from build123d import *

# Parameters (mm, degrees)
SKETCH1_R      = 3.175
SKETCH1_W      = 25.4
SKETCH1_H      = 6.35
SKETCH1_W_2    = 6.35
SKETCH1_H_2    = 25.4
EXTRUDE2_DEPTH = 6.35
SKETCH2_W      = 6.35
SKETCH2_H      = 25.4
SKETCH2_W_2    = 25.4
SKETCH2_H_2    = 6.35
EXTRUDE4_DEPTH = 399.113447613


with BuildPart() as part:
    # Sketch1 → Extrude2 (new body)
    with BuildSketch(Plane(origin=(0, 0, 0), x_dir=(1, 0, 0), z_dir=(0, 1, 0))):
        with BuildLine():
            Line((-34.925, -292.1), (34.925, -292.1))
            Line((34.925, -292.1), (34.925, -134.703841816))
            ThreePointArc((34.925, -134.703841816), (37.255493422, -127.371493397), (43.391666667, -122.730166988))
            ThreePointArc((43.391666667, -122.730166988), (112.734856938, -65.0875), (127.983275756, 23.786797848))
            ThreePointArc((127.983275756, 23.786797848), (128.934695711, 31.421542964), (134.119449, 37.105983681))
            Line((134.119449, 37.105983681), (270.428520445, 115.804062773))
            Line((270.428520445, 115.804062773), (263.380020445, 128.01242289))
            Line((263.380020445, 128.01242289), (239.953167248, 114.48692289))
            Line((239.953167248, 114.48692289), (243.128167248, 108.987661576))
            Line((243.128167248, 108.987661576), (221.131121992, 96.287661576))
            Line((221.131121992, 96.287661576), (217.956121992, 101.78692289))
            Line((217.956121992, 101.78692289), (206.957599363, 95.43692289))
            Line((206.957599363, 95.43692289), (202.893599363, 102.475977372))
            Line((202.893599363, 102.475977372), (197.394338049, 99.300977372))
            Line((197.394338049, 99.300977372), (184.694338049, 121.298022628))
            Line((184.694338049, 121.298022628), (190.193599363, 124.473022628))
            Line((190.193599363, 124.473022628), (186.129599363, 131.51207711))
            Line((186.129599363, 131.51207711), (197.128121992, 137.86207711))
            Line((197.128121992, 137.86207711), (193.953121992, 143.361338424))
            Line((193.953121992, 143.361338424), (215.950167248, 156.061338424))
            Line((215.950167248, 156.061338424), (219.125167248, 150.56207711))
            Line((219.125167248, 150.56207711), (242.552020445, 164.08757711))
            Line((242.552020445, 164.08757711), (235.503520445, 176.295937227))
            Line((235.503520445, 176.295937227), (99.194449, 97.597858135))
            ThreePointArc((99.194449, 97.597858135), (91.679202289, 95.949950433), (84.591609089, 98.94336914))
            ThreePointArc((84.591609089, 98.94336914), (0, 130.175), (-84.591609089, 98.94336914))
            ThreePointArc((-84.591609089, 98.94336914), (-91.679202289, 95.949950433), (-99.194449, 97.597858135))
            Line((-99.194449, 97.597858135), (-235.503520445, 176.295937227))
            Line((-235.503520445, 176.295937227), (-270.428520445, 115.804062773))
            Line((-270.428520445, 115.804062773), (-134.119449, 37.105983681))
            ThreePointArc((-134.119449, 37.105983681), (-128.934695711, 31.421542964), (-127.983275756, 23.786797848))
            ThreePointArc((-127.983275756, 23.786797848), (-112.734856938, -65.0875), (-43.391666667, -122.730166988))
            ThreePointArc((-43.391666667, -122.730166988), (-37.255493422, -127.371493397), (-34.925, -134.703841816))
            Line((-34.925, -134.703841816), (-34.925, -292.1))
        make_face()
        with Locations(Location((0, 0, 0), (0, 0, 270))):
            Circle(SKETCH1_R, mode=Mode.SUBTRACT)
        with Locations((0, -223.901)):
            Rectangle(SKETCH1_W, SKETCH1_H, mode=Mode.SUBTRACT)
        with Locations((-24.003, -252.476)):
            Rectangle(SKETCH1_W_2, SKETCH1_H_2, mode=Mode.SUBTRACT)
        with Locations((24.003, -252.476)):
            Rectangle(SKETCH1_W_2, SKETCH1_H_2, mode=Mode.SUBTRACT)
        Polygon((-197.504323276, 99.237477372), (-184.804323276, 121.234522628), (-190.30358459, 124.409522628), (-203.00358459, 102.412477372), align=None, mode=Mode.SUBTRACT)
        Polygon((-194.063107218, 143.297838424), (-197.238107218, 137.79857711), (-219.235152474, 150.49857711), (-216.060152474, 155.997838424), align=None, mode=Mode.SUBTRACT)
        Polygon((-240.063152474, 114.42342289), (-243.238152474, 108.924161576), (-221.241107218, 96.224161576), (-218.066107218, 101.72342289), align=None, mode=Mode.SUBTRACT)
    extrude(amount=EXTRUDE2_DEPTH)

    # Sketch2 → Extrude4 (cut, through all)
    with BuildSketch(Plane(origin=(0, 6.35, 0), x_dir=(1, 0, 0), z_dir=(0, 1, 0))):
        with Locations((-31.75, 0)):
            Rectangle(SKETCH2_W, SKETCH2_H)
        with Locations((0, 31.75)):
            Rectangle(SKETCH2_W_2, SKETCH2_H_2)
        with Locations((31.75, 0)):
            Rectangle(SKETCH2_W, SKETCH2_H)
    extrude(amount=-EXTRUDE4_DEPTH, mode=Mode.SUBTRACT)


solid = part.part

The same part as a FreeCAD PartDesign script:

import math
import FreeCAD as App
import Part
import Sketcher
from FreeCAD import Vector
Q = App.Units.Quantity

doc = App.newDocument("Part")
body = doc.addObject("PartDesign::Body", "Body")

# Sketch on XZ plane
sketch1 = body.newObject("Sketcher::SketchObject", "Sketch")
sketch1.AttachmentSupport = (doc.getObject("XZ_Plane"), [""])
sketch1.MapMode = "FlatFace"
sketch1.addGeometry([
    Part.LineSegment(Vector(-34.9, 292.1, 0), Vector(34.9, 292.1, 0)),  # 0
    Part.LineSegment(Vector(34.9, 292.1, 0), Vector(34.9, 134.7, 0)),  # 1
    Part.ArcOfCircle(Part.Circle(Vector(47.6, 134.7, 0), Vector(0, 0, 1), 12.7), math.radians(180), math.radians(251)),  # 2
    Part.ArcOfCircle(Part.Circle(Vector(0, 0, 0), Vector(0, 0, 1), 130.2), math.radians(-11), math.radians(71)),  # 3
    Part.ArcOfCircle(Part.Circle(Vector(140.5, -26.1, 0), Vector(0, 0, 1), 12.7), math.radians(169), math.radians(240)),  # 4
    Part.LineSegment(Vector(134.1, -37.1, 0), Vector(270.4, -115.8, 0)),  # 5
    Part.LineSegment(Vector(270.4, -115.8, 0), Vector(263.4, -128, 0)),  # 6
    Part.LineSegment(Vector(263.4, -128, 0), Vector(240, -114.5, 0)),  # 7
    Part.LineSegment(Vector(240, -114.5, 0), Vector(243.1, -109, 0)),  # 8
    Part.LineSegment(Vector(243.1, -109, 0), Vector(221.1, -96.3, 0)),  # 9
    Part.LineSegment(Vector(221.1, -96.3, 0), Vector(218, -101.8, 0)),  # 10
    Part.LineSegment(Vector(218, -101.8, 0), Vector(207, -95.4, 0)),  # 11
    Part.LineSegment(Vector(207, -95.4, 0), Vector(202.9, -102.5, 0)),  # 12
    Part.LineSegment(Vector(202.9, -102.5, 0), Vector(197.4, -99.3, 0)),  # 13
    Part.LineSegment(Vector(197.4, -99.3, 0), Vector(184.7, -121.3, 0)),  # 14
    Part.LineSegment(Vector(184.7, -121.3, 0), Vector(190.2, -124.5, 0)),  # 15
    Part.LineSegment(Vector(190.2, -124.5, 0), Vector(186.1, -131.5, 0)),  # 16
    Part.LineSegment(Vector(186.1, -131.5, 0), Vector(197.1, -137.9, 0)),  # 17
    Part.LineSegment(Vector(197.1, -137.9, 0), Vector(194, -143.4, 0)),  # 18
    Part.LineSegment(Vector(194, -143.4, 0), Vector(216, -156.1, 0)),  # 19
    Part.LineSegment(Vector(216, -156.1, 0), Vector(219.1, -150.6, 0)),  # 20
    Part.LineSegment(Vector(219.1, -150.6, 0), Vector(242.6, -164.1, 0)),  # 21
    Part.LineSegment(Vector(242.6, -164.1, 0), Vector(235.5, -176.3, 0)),  # 22
    Part.LineSegment(Vector(235.5, -176.3, 0), Vector(99.2, -97.6, 0)),  # 23
    Part.ArcOfCircle(Part.Circle(Vector(92.8, -108.6, 0), Vector(0, 0, 1), 12.7), math.radians(60), math.radians(131)),  # 24
    Part.ArcOfCircle(Part.Circle(Vector(0, 0, 0), Vector(0, 0, 1), 130.2), math.radians(-131), math.radians(-49)),  # 25
    Part.ArcOfCircle(Part.Circle(Vector(-92.8, -108.6, 0), Vector(0, 0, 1), 12.7), math.radians(49), math.radians(120)),  # 26
    Part.LineSegment(Vector(-99.2, -97.6, 0), Vector(-235.5, -176.3, 0)),  # 27
    Part.LineSegment(Vector(-235.5, -176.3, 0), Vector(-270.4, -115.8, 0)),  # 28
    Part.LineSegment(Vector(-270.4, -115.8, 0), Vector(-134.1, -37.1, 0)),  # 29
    Part.ArcOfCircle(Part.Circle(Vector(-140.5, -26.1, 0), Vector(0, 0, 1), 12.7), math.radians(-60), math.radians(11)),  # 30
    Part.ArcOfCircle(Part.Circle(Vector(0, 0, 0), Vector(0, 0, 1), 130.2), math.radians(109), math.radians(191)),  # 31
    Part.ArcOfCircle(Part.Circle(Vector(-47.6, 134.7, 0), Vector(0, 0, 1), 12.7), math.radians(-71), math.radians(0)),  # 32
    Part.LineSegment(Vector(-34.9, 134.7, 0), Vector(-34.9, 292.1, 0)),  # 33
    Part.LineSegment(Vector(-20.8, 265.2, 0), Vector(-27.2, 265.2, 0)),  # 34
    Part.LineSegment(Vector(-27.2, 265.2, 0), Vector(-27.2, 239.8, 0)),  # 35
    Part.LineSegment(Vector(-27.2, 239.8, 0), Vector(-20.8, 239.8, 0)),  # 36
    Part.LineSegment(Vector(-20.8, 239.8, 0), Vector(-20.8, 265.2, 0)),  # 37
    Part.LineSegment(Vector(27.2, 265.2, 0), Vector(20.8, 265.2, 0)),  # 38
    Part.LineSegment(Vector(20.8, 265.2, 0), Vector(20.8, 239.8, 0)),  # 39
    Part.LineSegment(Vector(20.8, 239.8, 0), Vector(27.2, 239.8, 0)),  # 40
    Part.LineSegment(Vector(27.2, 239.8, 0), Vector(27.2, 265.2, 0)),  # 41
    Part.LineSegment(Vector(12.7, 227.1, 0), Vector(-12.7, 227.1, 0)),  # 42
    Part.LineSegment(Vector(-12.7, 227.1, 0), Vector(-12.7, 220.7, 0)),  # 43
    Part.LineSegment(Vector(-12.7, 220.7, 0), Vector(12.7, 220.7, 0)),  # 44
    Part.LineSegment(Vector(12.7, 220.7, 0), Vector(12.7, 227.1, 0)),  # 45
    Part.LineSegment(Vector(-243.2, -108.9, 0), Vector(-240.1, -114.4, 0)),  # 46
    Part.LineSegment(Vector(-240.1, -114.4, 0), Vector(-218.1, -101.7, 0)),  # 47
    Part.LineSegment(Vector(-218.1, -101.7, 0), Vector(-221.2, -96.2, 0)),  # 48
    Part.LineSegment(Vector(-221.2, -96.2, 0), Vector(-243.2, -108.9, 0)),  # 49
    Part.LineSegment(Vector(-184.8, -121.2, 0), Vector(-197.5, -99.2, 0)),  # 50
    Part.LineSegment(Vector(-197.5, -99.2, 0), Vector(-203, -102.4, 0)),  # 51
    Part.LineSegment(Vector(-203, -102.4, 0), Vector(-190.3, -124.4, 0)),  # 52
    Part.LineSegment(Vector(-190.3, -124.4, 0), Vector(-184.8, -121.2, 0)),  # 53
    Part.LineSegment(Vector(-216.1, -156, 0), Vector(-194.1, -143.3, 0)),  # 54
    Part.LineSegment(Vector(-194.1, -143.3, 0), Vector(-197.2, -137.8, 0)),  # 55
    Part.LineSegment(Vector(-197.2, -137.8, 0), Vector(-219.2, -150.5, 0)),  # 56
    Part.LineSegment(Vector(-219.2, -150.5, 0), Vector(-216.1, -156, 0)),  # 57
    Part.Circle(Vector(0, 0, 0), Vector(0, 0, 1), 3.2),  # 58
], False)
sketch1.addConstraint([
    Sketcher.Constraint("Coincident", 0, 2, 1, 1),
    Sketcher.Constraint("Tangent", 1, 2, 2, 1),
    Sketcher.Constraint("Tangent", 2, 2, 3, 2),
    Sketcher.Constraint("Tangent", 3, 1, 4, 1),
    Sketcher.Constraint("Tangent", 4, 2, 5, 1),
    Sketcher.Constraint("Coincident", 5, 2, 6, 1),
    Sketcher.Constraint("Coincident", 6, 2, 7, 1),
    Sketcher.Constraint("Coincident", 7, 2, 8, 1),
    Sketcher.Constraint("Coincident", 8, 2, 9, 1),
    Sketcher.Constraint("Coincident", 9, 2, 10, 1),
    Sketcher.Constraint("Coincident", 10, 2, 11, 1),
    Sketcher.Constraint("Coincident", 11, 2, 12, 1),
    Sketcher.Constraint("Coincident", 12, 2, 13, 1),
    Sketcher.Constraint("Coincident", 13, 2, 14, 1),
    Sketcher.Constraint("Coincident", 14, 2, 15, 1),
    Sketcher.Constraint("Coincident", 15, 2, 16, 1),
    Sketcher.Constraint("Coincident", 16, 2, 17, 1),
    Sketcher.Constraint("Coincident", 17, 2, 18, 1),
    Sketcher.Constraint("Coincident", 18, 2, 19, 1),
    Sketcher.Constraint("Coincident", 19, 2, 20, 1),
    Sketcher.Constraint("Coincident", 20, 2, 21, 1),
    Sketcher.Constraint("Coincident", 21, 2, 22, 1),
    Sketcher.Constraint("Coincident", 22, 2, 23, 1),
    Sketcher.Constraint("Tangent", 23, 2, 24, 1),
    Sketcher.Constraint("Tangent", 24, 2, 25, 2),
    Sketcher.Constraint("Tangent", 25, 1, 26, 1),
    Sketcher.Constraint("Tangent", 26, 2, 27, 1),
    Sketcher.Constraint("Coincident", 27, 2, 28, 1),
    Sketcher.Constraint("Coincident", 28, 2, 29, 1),
    Sketcher.Constraint("Tangent", 29, 2, 30, 1),
    Sketcher.Constraint("Tangent", 30, 2, 31, 2),
    Sketcher.Constraint("Tangent", 31, 1, 32, 1),
    Sketcher.Constraint("Tangent", 32, 2, 33, 1),
    Sketcher.Constraint("Coincident", 33, 2, 0, 1),
    Sketcher.Constraint("Coincident", 34, 2, 35, 1),
    Sketcher.Constraint("Coincident", 35, 2, 36, 1),
    Sketcher.Constraint("Coincident", 36, 2, 37, 1),
    Sketcher.Constraint("Coincident", 37, 2, 34, 1),
    Sketcher.Constraint("Coincident", 38, 2, 39, 1),
    Sketcher.Constraint("Coincident", 39, 2, 40, 1),
    Sketcher.Constraint("Coincident", 40, 2, 41, 1),
    Sketcher.Constraint("Coincident", 41, 2, 38, 1),
    Sketcher.Constraint("Coincident", 42, 2, 43, 1),
    Sketcher.Constraint("Coincident", 43, 2, 44, 1),
    Sketcher.Constraint("Coincident", 44, 2, 45, 1),
    Sketcher.Constraint("Coincident", 45, 2, 42, 1),
    Sketcher.Constraint("Coincident", 46, 2, 47, 1),
    Sketcher.Constraint("Coincident", 47, 2, 48, 1),
    Sketcher.Constraint("Coincident", 48, 2, 49, 1),
    Sketcher.Constraint("Coincident", 49, 2, 46, 1),
    Sketcher.Constraint("Coincident", 50, 2, 51, 1),
    Sketcher.Constraint("Coincident", 51, 2, 52, 1),
    Sketcher.Constraint("Coincident", 52, 2, 53, 1),
    Sketcher.Constraint("Coincident", 53, 2, 50, 1),
    Sketcher.Constraint("Coincident", 54, 2, 55, 1),
    Sketcher.Constraint("Coincident", 55, 2, 56, 1),
    Sketcher.Constraint("Coincident", 56, 2, 57, 1),
    Sketcher.Constraint("Coincident", 57, 2, 54, 1),
    Sketcher.Constraint("Horizontal", 0),
    Sketcher.Constraint("Vertical", 1),
    Sketcher.Constraint("Vertical", 33),
    Sketcher.Constraint("Horizontal", 34),
    Sketcher.Constraint("Vertical", 35),
    Sketcher.Constraint("Horizontal", 36),
    Sketcher.Constraint("Vertical", 37),
    Sketcher.Constraint("Horizontal", 38),
    Sketcher.Constraint("Vertical", 39),
    Sketcher.Constraint("Horizontal", 40),
    Sketcher.Constraint("Vertical", 41),
    Sketcher.Constraint("Horizontal", 42),
    Sketcher.Constraint("Vertical", 43),
    Sketcher.Constraint("Horizontal", 44),
    Sketcher.Constraint("Vertical", 45),
    Sketcher.Constraint("Coincident", 3, 3, -1, 1),
    Sketcher.Constraint("Coincident", 25, 3, -1, 1),
    Sketcher.Constraint("Coincident", 31, 3, -1, 1),
    Sketcher.Constraint("Coincident", 58, 3, -1, 1),
    Sketcher.Constraint("Equal", 2, 4),
    Sketcher.Constraint("Equal", 4, 24),
    Sketcher.Constraint("Equal", 3, 25),
    Sketcher.Constraint("Equal", 24, 26),
    Sketcher.Constraint("Equal", 26, 30),
    Sketcher.Constraint("Equal", 25, 31),
    Sketcher.Constraint("Equal", 30, 32),
    Sketcher.Constraint("Symmetric", 23, 2, 26, 2, -2),
    Sketcher.Constraint("Symmetric", 5, 2, 28, 2, -2),
    Sketcher.Constraint("Symmetric", 37, 2, 38, 2, -2),
    Sketcher.Constraint("Symmetric", 35, 2, 40, 2, -2),
    Sketcher.Constraint("Perpendicular", 5, 6),
    Sketcher.Constraint("Perpendicular", 6, 7),
    Sketcher.Constraint("Perpendicular", 7, 8),
    Sketcher.Constraint("Perpendicular", 8, 9),
    Sketcher.Constraint("Perpendicular", 9, 10),
    Sketcher.Constraint("Perpendicular", 10, 11),
    Sketcher.Constraint("Perpendicular", 11, 12),
    Sketcher.Constraint("Perpendicular", 12, 13),
    Sketcher.Constraint("Perpendicular", 13, 14),
    Sketcher.Constraint("Perpendicular", 14, 15),
    Sketcher.Constraint("Perpendicular", 15, 16),
    Sketcher.Constraint("Perpendicular", 16, 17),
    Sketcher.Constraint("Perpendicular", 17, 18),
    Sketcher.Constraint("Perpendicular", 18, 19),
    Sketcher.Constraint("Perpendicular", 19, 20),
    Sketcher.Constraint("Perpendicular", 20, 21),
    Sketcher.Constraint("Perpendicular", 21, 22),
    Sketcher.Constraint("Perpendicular", 22, 23),
    Sketcher.Constraint("Perpendicular", 27, 28),
    Sketcher.Constraint("Perpendicular", 28, 29),
    Sketcher.Constraint("Perpendicular", 29, 46),
    Sketcher.Constraint("Perpendicular", 46, 47),
    Sketcher.Constraint("Perpendicular", 47, 48),
    Sketcher.Constraint("Perpendicular", 48, 49),
    Sketcher.Constraint("Perpendicular", 49, 50),
    Sketcher.Constraint("Perpendicular", 50, 51),
    Sketcher.Constraint("Perpendicular", 51, 52),
    Sketcher.Constraint("Perpendicular", 52, 53),
    Sketcher.Constraint("Parallel", 53, 54),
    Sketcher.Constraint("Perpendicular", 54, 55),
    Sketcher.Constraint("Perpendicular", 55, 56),
    Sketcher.Constraint("Perpendicular", 56, 57),
    Sketcher.Constraint("Horizontal", 2, 3, 32, 3),
    Sketcher.Constraint("Horizontal", 22, 2, 27, 2),
    Sketcher.Constraint("Equal", 44, 35),
    Sketcher.Constraint("Equal", 40, 43),
    Sketcher.Constraint("Equal", 8, 10),
    Sketcher.Constraint("Equal", 10, 13),
    Sketcher.Constraint("Equal", 9, 14),
    Sketcher.Constraint("Equal", 13, 15),
    Sketcher.Constraint("Equal", 12, 16),
    Sketcher.Constraint("Equal", 11, 17),
    Sketcher.Constraint("Equal", 15, 18),
    Sketcher.Constraint("Equal", 14, 19),
    Sketcher.Constraint("Equal", 18, 20),
    Sketcher.Constraint("Equal", 6, 22),
    Sketcher.Constraint("Equal", 5, 23),
    Sketcher.Constraint("Equal", 20, 46),
    Sketcher.Constraint("Equal", 19, 47),
    Sketcher.Constraint("Equal", 49, 50),
    Sketcher.Constraint("Equal", 48, 51),
    Sketcher.Constraint("Equal", 52, 54),
    Sketcher.Constraint("Equal", 53, 55),
    Sketcher.Constraint("Radius", 2, Q("0.5 in")),
    Sketcher.Constraint("Diameter", 58, Q("0.25 in")),
    Sketcher.Constraint("DistanceX", 42, 2, 42, 1, Q("1 in")),
    Sketcher.Constraint("Distance", 9, Q("1 in")),
    Sketcher.Constraint("Angle", 5, Q("-30 deg")),
    Sketcher.Constraint("Radius", 3, Q("5.125 in")),
    Sketcher.Constraint("Distance", 11, Q("0.5 in")),
    Sketcher.Constraint("DistanceX", 0, 1, 0, 2, Q("2.75 in")),
    Sketcher.Constraint("DistanceX", 34, 2, 34, 1, Q("0.25 in")),
    Sketcher.Constraint("DistanceY", -1, 1, 0, 2, Q("11.5 in")),
    Sketcher.Constraint("DistanceX", 42, 2, -1, 1, Q("0.5 in")),
    Sketcher.Constraint("Distance", 8, Q("0.25 in")),
    Sketcher.Constraint("Distance", 12, Q("0.32 in")),
    Sketcher.Constraint("Distance", 28, Q("2.75 in")),
    Sketcher.Constraint("DistanceX", 34, 2, -1, 1, Q("1.07 in")),
    Sketcher.Constraint("DistanceY", -1, 1, 34, 2, Q("10.44 in")),
    Sketcher.Constraint("DistanceY", -1, 1, 42, 2, Q("8.94 in")),
    Sketcher.Constraint("Distance", 7, Q("1.065 in")),
    Sketcher.Constraint("DistanceX", -1, 1, 11, 2, Q("206.957599 mm")),
    Sketcher.Constraint("DistanceY", 48, 2, -1, 1, Q("96.224162 mm")),
    Sketcher.Constraint("DistanceY", 54, 2, -1, 1, Q("143.297838 mm")),
    Sketcher.Constraint("DistanceX", 46, 2, -1, 1, Q("240.063152 mm")),
    Sketcher.Constraint("DistanceX", 50, 2, -1, 1, Q("197.504323 mm")),
    Sketcher.Constraint("DistanceY", 50, 2, -1, 1, Q("99.237477 mm")),
    Sketcher.Constraint("DistanceX", 54, 2, -1, 1, Q("194.063107 mm")),
])
pad1 = body.newObject("PartDesign::Pad", "Pad")
pad1.Profile = sketch1
pad1.Length = Q("0.25 in")
pad1.Reversed = True

# Sketch on XZ plane
sketch2 = body.newObject("Sketcher::SketchObject", "Sketch001")
sketch2.AttachmentSupport = (doc.getObject("XZ_Plane"), [""])
sketch2.MapMode = "FlatFace"
sketch2.AttachmentOffset = App.Placement(Vector(0, 0, -0.25 * 25.4), App.Rotation())
sketch2.addGeometry([
    Part.LineSegment(Vector(-35, -13, 0), Vector(-35, 13, 0)),  # 0
    Part.LineSegment(Vector(-35, 13, 0), Vector(-29, 13, 0)),  # 1
    Part.LineSegment(Vector(-29, 13, 0), Vector(-29, -13, 0)),  # 2
    Part.LineSegment(Vector(-29, -13, 0), Vector(-35, -13, 0)),  # 3
    Part.LineSegment(Vector(-13, -35, 0), Vector(-13, -29, 0)),  # 4
    Part.LineSegment(Vector(-13, -29, 0), Vector(13, -29, 0)),  # 5
    Part.LineSegment(Vector(13, -29, 0), Vector(13, -35, 0)),  # 6
    Part.LineSegment(Vector(13, -35, 0), Vector(-13, -35, 0)),  # 7
    Part.LineSegment(Vector(29, -13, 0), Vector(29, 13, 0)),  # 8
    Part.LineSegment(Vector(29, 13, 0), Vector(35, 13, 0)),  # 9
    Part.LineSegment(Vector(35, 13, 0), Vector(35, -13, 0)),  # 10
    Part.LineSegment(Vector(35, -13, 0), Vector(29, -13, 0)),  # 11
], False)
sketch2.addConstraint([
    Sketcher.Constraint("Coincident", 0, 2, 1, 1),
    Sketcher.Constraint("Coincident", 1, 2, 2, 1),
    Sketcher.Constraint("Coincident", 2, 2, 3, 1),
    Sketcher.Constraint("Coincident", 3, 2, 0, 1),
    Sketcher.Constraint("Coincident", 4, 2, 5, 1),
    Sketcher.Constraint("Coincident", 5, 2, 6, 1),
    Sketcher.Constraint("Coincident", 6, 2, 7, 1),
    Sketcher.Constraint("Coincident", 7, 2, 4, 1),
    Sketcher.Constraint("Coincident", 8, 2, 9, 1),
    Sketcher.Constraint("Coincident", 9, 2, 10, 1),
    Sketcher.Constraint("Coincident", 10, 2, 11, 1),
    Sketcher.Constraint("Coincident", 11, 2, 8, 1),
    Sketcher.Constraint("Vertical", 0),
    Sketcher.Constraint("Horizontal", 1),
    Sketcher.Constraint("Vertical", 2),
    Sketcher.Constraint("Horizontal", 3),
    Sketcher.Constraint("Vertical", 4),
    Sketcher.Constraint("Horizontal", 5),
    Sketcher.Constraint("Vertical", 6),
    Sketcher.Constraint("Horizontal", 7),
    Sketcher.Constraint("Vertical", 8),
    Sketcher.Constraint("Horizontal", 9),
    Sketcher.Constraint("Vertical", 10),
    Sketcher.Constraint("Horizontal", 11),
    Sketcher.Constraint("Symmetric", 2, 2, 8, 2, -1, 1),
    Sketcher.Constraint("Symmetric", 0, 2, 10, 2, -1, 1),
    Sketcher.Constraint("Horizontal", 1, 2, 8, 2),
    Sketcher.Constraint("Equal", 7, 0),
    Sketcher.Constraint("Equal", 11, 4),
    Sketcher.Constraint("DistanceX", 5, 1, 5, 2, Q("1 in")),
    Sketcher.Constraint("DistanceX", 1, 1, 1, 2, Q("0.25 in")),
    Sketcher.Constraint("DistanceX", 4, 2, -1, 1, Q("0.5 in")),
    Sketcher.Constraint("DistanceX", 1, 2, 9, 2, Q("2.5 in")),
    Sketcher.Constraint("DistanceY", 4, 2, -1, 1, Q("1.125 in")),
])
pocket1 = body.newObject("PartDesign::Pocket", "Pocket")
pocket1.Profile = sketch2
pocket1.Type = "ThroughAll"
pocket1.Reversed = True

doc.recompute()
